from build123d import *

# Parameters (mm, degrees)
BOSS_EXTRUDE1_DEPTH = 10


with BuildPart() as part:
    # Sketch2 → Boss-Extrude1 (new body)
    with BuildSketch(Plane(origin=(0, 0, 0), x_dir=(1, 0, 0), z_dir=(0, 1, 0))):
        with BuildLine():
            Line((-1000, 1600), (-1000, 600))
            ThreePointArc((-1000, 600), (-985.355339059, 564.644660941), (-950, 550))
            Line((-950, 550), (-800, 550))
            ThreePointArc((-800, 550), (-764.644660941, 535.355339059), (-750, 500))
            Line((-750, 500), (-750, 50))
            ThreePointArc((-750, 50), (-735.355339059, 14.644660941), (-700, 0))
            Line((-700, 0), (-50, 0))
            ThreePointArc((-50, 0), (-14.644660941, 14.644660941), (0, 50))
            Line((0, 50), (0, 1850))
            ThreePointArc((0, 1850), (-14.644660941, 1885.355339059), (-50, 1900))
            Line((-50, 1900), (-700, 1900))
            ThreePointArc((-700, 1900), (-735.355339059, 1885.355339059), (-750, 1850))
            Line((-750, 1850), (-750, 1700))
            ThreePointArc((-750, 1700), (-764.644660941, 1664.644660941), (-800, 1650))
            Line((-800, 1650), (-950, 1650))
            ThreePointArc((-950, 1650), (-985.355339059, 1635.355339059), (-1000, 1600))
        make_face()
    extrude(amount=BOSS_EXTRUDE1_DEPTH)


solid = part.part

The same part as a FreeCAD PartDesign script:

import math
import FreeCAD as App
import Part
import Sketcher
from FreeCAD import Vector
Q = App.Units.Quantity

doc = App.newDocument("Part")
params = doc.addObject("Spreadsheet::Sheet", "Params")
for row, (alias, value) in enumerate([
    ("sketch1_radius", "50 mm"),
    ("sketch1_width", "150 mm"),
    ("sketch1_width2", "650 mm"),
    ("sketch1_height", "1000 mm"),
    ("sketch1_height2", "450 mm"),
    ("pad1_length", "10 mm"),
], start=1):
    params.set(f"A{row}", alias)
    params.set(f"B{row}", "=" + value)
    params.setAlias(f"B{row}", alias)

body = doc.addObject("PartDesign::Body", "Body")

# Sketch on XZ plane
sketch1 = body.newObject("Sketcher::SketchObject", "Sketch")
sketch1.AttachmentSupport = (doc.getObject("XZ_Plane"), [""])
sketch1.MapMode = "FlatFace"
sketch1.addGeometry([
    Part.LineSegment(Vector(-1000, -1600, 0), Vector(-1000, -600, 0)),  # 0
    Part.ArcOfCircle(Part.Circle(Vector(-950, -600, 0), Vector(0, 0, 1), 50), math.radians(90), math.radians(180)),  # 1
    Part.LineSegment(Vector(-950, -550, 0), Vector(-800, -550, 0)),  # 2
    Part.ArcOfCircle(Part.Circle(Vector(-800, -500, 0), Vector(0, 0, 1), 50), math.radians(-90), math.radians(0)),  # 3
    Part.LineSegment(Vector(-750, -500, 0), Vector(-750, -50, 0)),  # 4
    Part.ArcOfCircle(Part.Circle(Vector(-700, -50, 0), Vector(0, 0, 1), 50), math.radians(90), math.radians(180)),  # 5
    Part.LineSegment(Vector(-700, 0, 0), Vector(-50, 0, 0)),  # 6
    Part.ArcOfCircle(Part.Circle(Vector(-50, -50, 0), Vector(0, 0, 1), 50), math.radians(0), math.radians(90)),  # 7
    Part.LineSegment(Vector(0, -50, 0), Vector(0, -1850, 0)),  # 8
    Part.ArcOfCircle(Part.Circle(Vector(-50, -1850, 0), Vector(0, 0, 1), 50), math.radians(-90), math.radians(0)),  # 9
    Part.LineSegment(Vector(-50, -1900, 0), Vector(-700, -1900, 0)),  # 10
    Part.ArcOfCircle(Part.Circle(Vector(-700, -1850, 0), Vector(0, 0, 1), 50), math.radians(-180), math.radians(-90)),  # 11
    Part.LineSegment(Vector(-750, -1850, 0), Vector(-750, -1700, 0)),  # 12
    Part.ArcOfCircle(Part.Circle(Vector(-800, -1700, 0), Vector(0, 0, 1), 50), math.radians(0), math.radians(90)),  # 13
    Part.LineSegment(Vector(-800, -1650, 0), Vector(-950, -1650, 0)),  # 14
    Part.ArcOfCircle(Part.Circle(Vector(-950, -1600, 0), Vector(0, 0, 1), 50), math.radians(-180), math.radians(-90)),  # 15
], False)
sketch1.addConstraint([
    Sketcher.Constraint("Tangent", 0, 2, 1, 2),
    Sketcher.Constraint("Tangent", 1, 1, 2, 1),
    Sketcher.Constraint("Tangent", 2, 2, 3, 1),
    Sketcher.Constraint("Tangent", 3, 2, 4, 1),
    Sketcher.Constraint("Tangent", 4, 2, 5, 2),
    Sketcher.Constraint("Tangent", 5, 1, 6, 1),
    Sketcher.Constraint("Tangent", 6, 2, 7, 2),
    Sketcher.Constraint("Tangent", 7, 1, 8, 1),
    Sketcher.Constraint("Tangent", 8, 2, 9, 2),
    Sketcher.Constraint("Tangent", 9, 1, 10, 1),
    Sketcher.Constraint("Tangent", 10, 2, 11, 2),
    Sketcher.Constraint("Tangent", 11, 1, 12, 1),
    Sketcher.Constraint("Tangent", 12, 2, 13, 1),
    Sketcher.Constraint("Tangent", 13, 2, 14, 1),
    Sketcher.Constraint("Tangent", 14, 2, 15, 2),
    Sketcher.Constraint("Tangent", 15, 1, 0, 1),
    Sketcher.Constraint("Vertical", 0),
    Sketcher.Constraint("Horizontal", 2),
    Sketcher.Constraint("Vertical", 4),
    Sketcher.Constraint("Horizontal", 6),
    Sketcher.Constraint("Vertical", 8),
    Sketcher.Constraint("Horizontal", 10),
    Sketcher.Constraint("Vertical", 12),
    Sketcher.Constraint("Horizontal", 14),
    Sketcher.Constraint("Equal", 1, 3),
    Sketcher.Constraint("Equal", 3, 5),
    Sketcher.Constraint("Equal", 5, 7),
    Sketcher.Constraint("Equal", 7, 9),
    Sketcher.Constraint("Equal", 9, 11),
    Sketcher.Constraint("Equal", 11, 13),
    Sketcher.Constraint("Equal", 13, 15),
    Sketcher.Constraint("PointOnObject", 5, 1, -1),
    Sketcher.Constraint("PointOnObject", 7, 1, -2),
    Sketcher.Constraint("Vertical", 5, 3, 11, 3),
    Sketcher.Constraint("Equal", 14, 12),
    Sketcher.Constraint("Radius", 1, Q("50 mm")),
    Sketcher.Constraint("DistanceX", 2, 1, 2, 2, Q("150 mm")),
    Sketcher.Constraint("DistanceX", 6, 1, 6, 2, Q("650 mm")),
    Sketcher.Constraint("DistanceY", 0, 1, 0, 2, Q("1000 mm")),
    Sketcher.Constraint("DistanceY", 4, 1, 4, 2, Q("450 mm")),
])
sketch1.setExpression("Constraints[35]", "Params.sketch1_radius")
sketch1.setExpression("Constraints[36]", "Params.sketch1_width")
sketch1.setExpression("Constraints[37]", "Params.sketch1_width2")
sketch1.setExpression("Constraints[38]", "Params.sketch1_height")
sketch1.setExpression("Constraints[39]", "Params.sketch1_height2")
pad1 = body.newObject("PartDesign::Pad", "Pad")
pad1.Profile = sketch1
pad1.setExpression("Length", "Params.pad1_length")
pad1.Reversed = True

doc.recompute()
